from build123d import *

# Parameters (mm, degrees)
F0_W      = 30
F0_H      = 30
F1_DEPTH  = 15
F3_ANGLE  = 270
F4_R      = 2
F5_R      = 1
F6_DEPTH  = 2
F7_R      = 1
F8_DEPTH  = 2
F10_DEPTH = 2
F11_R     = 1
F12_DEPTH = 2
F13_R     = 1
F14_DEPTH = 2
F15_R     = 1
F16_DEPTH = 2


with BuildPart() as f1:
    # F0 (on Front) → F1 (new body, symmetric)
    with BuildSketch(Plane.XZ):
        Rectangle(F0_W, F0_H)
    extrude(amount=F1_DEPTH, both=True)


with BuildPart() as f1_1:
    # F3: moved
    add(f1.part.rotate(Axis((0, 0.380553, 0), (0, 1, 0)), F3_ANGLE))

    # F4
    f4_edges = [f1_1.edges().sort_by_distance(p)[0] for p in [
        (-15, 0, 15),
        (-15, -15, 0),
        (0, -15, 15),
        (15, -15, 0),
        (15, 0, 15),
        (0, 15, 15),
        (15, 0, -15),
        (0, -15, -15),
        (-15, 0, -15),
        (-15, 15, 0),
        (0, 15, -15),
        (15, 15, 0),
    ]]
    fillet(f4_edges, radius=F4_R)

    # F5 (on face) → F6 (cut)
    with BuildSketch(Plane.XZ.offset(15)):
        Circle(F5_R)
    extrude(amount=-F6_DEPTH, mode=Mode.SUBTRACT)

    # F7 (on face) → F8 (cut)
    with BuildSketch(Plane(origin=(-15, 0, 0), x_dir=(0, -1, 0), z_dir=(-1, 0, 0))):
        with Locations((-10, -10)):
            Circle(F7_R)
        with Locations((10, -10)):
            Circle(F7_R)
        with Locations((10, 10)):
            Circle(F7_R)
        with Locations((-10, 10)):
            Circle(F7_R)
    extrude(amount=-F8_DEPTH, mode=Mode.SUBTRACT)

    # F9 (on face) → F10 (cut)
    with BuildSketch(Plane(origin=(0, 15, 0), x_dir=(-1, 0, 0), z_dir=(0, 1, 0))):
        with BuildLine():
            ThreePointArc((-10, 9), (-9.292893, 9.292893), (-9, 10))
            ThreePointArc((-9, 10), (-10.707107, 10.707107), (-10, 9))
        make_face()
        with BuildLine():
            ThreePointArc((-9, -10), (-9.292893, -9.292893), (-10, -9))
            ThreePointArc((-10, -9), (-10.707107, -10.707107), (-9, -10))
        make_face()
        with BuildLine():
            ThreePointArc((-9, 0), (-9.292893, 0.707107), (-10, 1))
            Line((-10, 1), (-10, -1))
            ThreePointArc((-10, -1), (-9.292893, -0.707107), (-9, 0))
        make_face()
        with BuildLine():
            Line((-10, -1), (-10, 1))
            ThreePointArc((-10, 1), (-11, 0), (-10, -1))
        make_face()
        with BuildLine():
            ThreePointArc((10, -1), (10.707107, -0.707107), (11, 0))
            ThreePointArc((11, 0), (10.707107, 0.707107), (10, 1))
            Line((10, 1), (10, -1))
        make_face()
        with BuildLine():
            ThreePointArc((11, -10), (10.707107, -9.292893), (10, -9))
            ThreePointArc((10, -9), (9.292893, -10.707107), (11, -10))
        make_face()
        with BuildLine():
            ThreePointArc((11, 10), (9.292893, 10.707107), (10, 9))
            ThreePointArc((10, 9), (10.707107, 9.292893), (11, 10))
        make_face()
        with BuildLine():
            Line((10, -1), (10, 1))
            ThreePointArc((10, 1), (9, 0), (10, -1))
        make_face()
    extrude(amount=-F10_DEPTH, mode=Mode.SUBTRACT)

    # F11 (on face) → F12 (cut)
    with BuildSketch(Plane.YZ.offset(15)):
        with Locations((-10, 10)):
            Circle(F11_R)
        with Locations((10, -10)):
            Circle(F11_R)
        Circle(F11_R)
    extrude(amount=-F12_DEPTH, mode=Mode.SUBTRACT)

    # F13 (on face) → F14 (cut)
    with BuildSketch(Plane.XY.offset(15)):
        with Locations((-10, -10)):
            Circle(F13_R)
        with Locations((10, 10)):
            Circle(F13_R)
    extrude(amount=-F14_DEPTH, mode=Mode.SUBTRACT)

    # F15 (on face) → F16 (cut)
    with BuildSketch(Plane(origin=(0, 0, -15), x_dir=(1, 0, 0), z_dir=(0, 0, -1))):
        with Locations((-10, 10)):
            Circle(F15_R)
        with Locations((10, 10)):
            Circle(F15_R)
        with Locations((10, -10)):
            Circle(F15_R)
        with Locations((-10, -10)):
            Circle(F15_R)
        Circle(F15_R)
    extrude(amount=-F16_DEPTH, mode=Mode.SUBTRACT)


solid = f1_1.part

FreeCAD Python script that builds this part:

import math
import FreeCAD as App
import Part
import Sketcher

V = App.Vector


def add_polygon(sketch, points):
    """Adds a closed chain of lines whose ends are joined by coincident constraints."""
    first, n = sketch.GeometryCount, len(points)
    for a, b in zip(points, points[1:] + points[:1]):
        sketch.addGeometry(Part.LineSegment(App.Vector(*a, 0), App.Vector(*b, 0)), False)
    for i in range(n):
        sketch.addConstraint(Sketcher.Constraint("Coincident", first + i, 2, first + (i + 1) % n, 1))

doc = App.newDocument("Part")
params = doc.addObject("Spreadsheet::Sheet", "Params")
for row, (alias, value) in enumerate([
    ("sketch1_width", "30 mm"),
    ("pad1_length", "30 mm"),
    ("fillet_radius", "2 mm"),
    ("sketch2_diameter", "2 mm"),
    ("pocket1_length", "2 mm"),
    ("sketch3_diameter", "2 mm"),
    ("pocket2_length", "2 mm"),
    ("sketch4_radius", "0.999999 mm"),
    ("pocket3_length", "2 mm"),
    ("sketch5_diameter", "2 mm"),
    ("pocket4_length", "2 mm"),
    ("sketch6_diameter", "2 mm"),
    ("pocket5_length", "2 mm"),
    ("sketch7_diameter", "2 mm"),
    ("pocket6_length", "2 mm"),
], start=1):
    params.set(f"A{row}", alias)
    params.set(f"B{row}", "=" + value)
    params.setAlias(f"B{row}", alias)

body = doc.addObject("PartDesign::Body", "Body")

sketch1 = body.newObject("Sketcher::SketchObject", "Sketch")
sketch1.AttachmentSupport = (doc.getObject("XZ_Plane"), [""])
sketch1.MapMode = "FlatFace"
add_polygon(sketch1, [(-15, 15), (-15, -15), (15, -15), (15, 15)])
sketch1.addConstraint(Sketcher.Constraint("Vertical", 0))
sketch1.addConstraint(Sketcher.Constraint("Horizontal", 1))
sketch1.addConstraint(Sketcher.Constraint("Vertical", 2))
sketch1.addConstraint(Sketcher.Constraint("Horizontal", 3))
sketch1.addConstraint(Sketcher.Constraint("Symmetric", 0, 2, 2, 2, -1, 1))
sketch1.addConstraint(Sketcher.Constraint("Equal", 3, 0))
sketch1.addConstraint(Sketcher.Constraint("DistanceX", 1, 1, 1, 2, 30.0))
sketch1.setExpression("Constraints[10]", "Params.sketch1_width")
pad1 = body.newObject("PartDesign::Pad", "Pad")
pad1.Profile = sketch1
pad1.setExpression("Length", "Params.pad1_length")
pad1.Midplane = True
body2 = doc.addObject("PartDesign::Body", "Body001")
doc.recompute()

body.Placement = App.Placement(V(0, 0, 0), App.Rotation(V(0, 1, 0), 270))
boolean = body2.newObject("PartDesign::Boolean", "Boolean")
boolean.Type = "Fuse"
boolean.addObjects([body])
doc.recompute()

fillet = body2.newObject("PartDesign::Fillet", "Fillet")
fillet.Base = (boolean, ["Edge1"])
fillet.UseAllEdges = True
fillet.setExpression("Radius", "Params.fillet_radius")

sketch2 = body2.newObject("Sketcher::SketchObject", "Sketch001")
sketch2.AttachmentSupport = (doc.getObject("XZ_Plane001"), [""])
sketch2.MapMode = "FlatFace"
sketch2.AttachmentOffset = App.Placement(V(0, 0, 15), App.Rotation())
sketch2.addGeometry(Part.Circle(V(0, 0, 0), V(0, 0, 1), 1), False)
sketch2.addConstraint(Sketcher.Constraint("Coincident", 0, 3, -1, 1))
sketch2.addConstraint(Sketcher.Constraint("Diameter", 0, 2.0))
sketch2.setExpression("Constraints[1]", "Params.sketch2_diameter")
pocket1 = body2.newObject("PartDesign::Pocket", "Pocket")
pocket1.Profile = sketch2
pocket1.setExpression("Length", "Params.pocket1_length")

sketch3 = body2.newObject("Sketcher::SketchObject", "Sketch002")
sketch3.AttachmentSupport = (doc.getObject("YZ_Plane001"), [""])
sketch3.MapMode = "FlatFace"
sketch3.AttachmentOffset = App.Placement(V(0, 0, -15), App.Rotation())
sketch3.addGeometry(Part.Circle(V(10, -10, 0), V(0, 0, 1), 1), False)
sketch3.addGeometry(Part.Circle(V(-10, -10, 0), V(0, 0, 1), 1), False)
sketch3.addGeometry(Part.Circle(V(-10, 10, 0), V(0, 0, 1), 1), False)
sketch3.addGeometry(Part.Circle(V(10, 10, 0), V(0, 0, 1), 1), False)
sketch3.addConstraint(Sketcher.Constraint("Equal", 0, 1))
sketch3.addConstraint(Sketcher.Constraint("Equal", 1, 2))
sketch3.addConstraint(Sketcher.Constraint("Equal", 2, 3))
sketch3.addConstraint(Sketcher.Constraint("Symmetric", 0, 3, 2, 3, -1, 1))
sketch3.addConstraint(Sketcher.Constraint("Symmetric", 1, 3, 3, 3, -1, 1))
sketch3.addConstraint(Sketcher.Constraint("Symmetric", 0, 3, 1, 3, -2))
sketch3.addConstraint(Sketcher.Constraint("Diameter", 0, 2.0))
sketch3.addConstraint(Sketcher.Constraint("DistanceX", -1, 1, 0, 3, 10.0))
sketch3.addConstraint(Sketcher.Constraint("DistanceY", 0, 3, -1, 1, 10.0))
sketch3.setExpression("Constraints[6]", "Params.sketch3_diameter")
pocket2 = body2.newObject("PartDesign::Pocket", "Pocket001")
pocket2.Profile = sketch3
pocket2.setExpression("Length", "Params.pocket2_length")
pocket2.Reversed = True

sketch4 = body2.newObject("Sketcher::SketchObject", "Sketch003")
sketch4.AttachmentSupport = (doc.getObject("XZ_Plane001"), [""])
sketch4.MapMode = "FlatFace"
sketch4.AttachmentOffset = App.Placement(V(0, 0, -15), App.Rotation())
sketch4.addGeometry(Part.ArcOfCircle(Part.Circle(V(10, 10, 0), V(0, 0, 1), 1), math.radians(180), math.radians(270)), False)
sketch4.addGeometry(Part.ArcOfCircle(Part.Circle(V(10, 10, 0), V(0, 0, 1), 1), math.radians(-90), math.radians(180)), False)
sketch4.addGeometry(Part.ArcOfCircle(Part.Circle(V(10, -10, 0), V(0, 0, 1), 1), math.radians(90), math.radians(180)), False)
sketch4.addGeometry(Part.ArcOfCircle(Part.Circle(V(10, -10, 0), V(0, 0, 1), 1), math.radians(180), math.radians(450)), False)
sketch4.addGeometry(Part.ArcOfCircle(Part.Circle(V(10, 0, 0), V(0, 0, 1), 1), math.radians(90), math.radians(180)), False)
sketch4.addGeometry(Part.ArcOfCircle(Part.Circle(V(10, 0, 0), V(0, 0, 1), 1), math.radians(-90), math.radians(90)), False)
sketch4.addGeometry(Part.ArcOfCircle(Part.Circle(V(10, 0, 0), V(0, 0, 1), 1), math.radians(180), math.radians(270)), False)
sketch4.addGeometry(Part.ArcOfCircle(Part.Circle(V(-10, 0, 0), V(0, 0, 1), 1), math.radians(180), math.radians(270)), False)
sketch4.addGeometry(Part.ArcOfCircle(Part.Circle(V(-10, 0, 0), V(0, 0, 1), 1), math.radians(90), math.radians(180)), False)
sketch4.addGeometry(Part.ArcOfCircle(Part.Circle(V(-10, 0, 0), V(0, 0, 1), 1), math.radians(-90), math.radians(90)), False)
sketch4.addGeometry(Part.ArcOfCircle(Part.Circle(V(-10, -10, 0), V(0, 0, 1), 1), math.radians(90), math.radians(180)), False)
sketch4.addGeometry(Part.ArcOfCircle(Part.Circle(V(-10, -10, 0), V(0, 0, 1), 1), math.radians(180), math.radians(450)), False)
sketch4.addGeometry(Part.ArcOfCircle(Part.Circle(V(-10, 10, 0), V(0, 0, 1), 1), math.radians(-90), math.radians(180)), False)
sketch4.addGeometry(Part.ArcOfCircle(Part.Circle(V(-10, 10, 0), V(0, 0, 1), 1), math.radians(180), math.radians(270)), False)
sketch4.addConstraint(Sketcher.Constraint("Tangent", 0, 1, 1, 2))
sketch4.addConstraint(Sketcher.Constraint("Coincident", 1, 1, 0, 2))
sketch4.addConstraint(Sketcher.Constraint("Tangent", 2, 1, 3, 2))
sketch4.addConstraint(Sketcher.Constraint("Coincident", 3, 1, 2, 2))
sketch4.addConstraint(Sketcher.Constraint("Tangent", 4, 1, 5, 2))
sketch4.addConstraint(Sketcher.Constraint("Tangent", 5, 1, 6, 2))
sketch4.addConstraint(Sketcher.Constraint("Tangent", 6, 1, 4, 2))
sketch4.addConstraint(Sketcher.Constraint("Tangent", 7, 1, 8, 2))
sketch4.addConstraint(Sketcher.Constraint("Tangent", 8, 1, 9, 2))
sketch4.addConstraint(Sketcher.Constraint("Tangent", 9, 1, 7, 2))
sketch4.addConstraint(Sketcher.Constraint("Tangent", 10, 1, 11, 2))
sketch4.addConstraint(Sketcher.Constraint("Coincident", 11, 1, 10, 2))
sketch4.addConstraint(Sketcher.Constraint("Tangent", 12, 1, 13, 2))
sketch4.addConstraint(Sketcher.Constraint("Coincident", 13, 1, 12, 2))
sketch4.addConstraint(Sketcher.Constraint("Equal", 1, 2))
sketch4.addConstraint(Sketcher.Constraint("Equal", 3, 4))
sketch4.addConstraint(Sketcher.Constraint("Equal", 6, 7))
sketch4.addConstraint(Sketcher.Constraint("Equal", 9, 10))
sketch4.addConstraint(Sketcher.Constraint("Equal", 11, 12))
sketch4.addConstraint(Sketcher.Constraint("Symmetric", 4, 3, 7, 3, -1, 1))
sketch4.addConstraint(Sketcher.Constraint("Symmetric", 0, 3, 10, 3, -1, 1))
sketch4.addConstraint(Sketcher.Constraint("Symmetric", 2, 3, 12, 3, -1, 1))
sketch4.addConstraint(Sketcher.Constraint("Symmetric", 2, 3, 10, 3, -2))
sketch4.addConstraint(Sketcher.Constraint("Symmetric", 4, 1, 8, 1, -2))
sketch4.addConstraint(Sketcher.Constraint("PointOnObject", 6, 1, -1))
sketch4.addConstraint(Sketcher.Constraint("PointOnObject", 7, 1, -1))
sketch4.addConstraint(Sketcher.Constraint("Horizontal", 13, 3, 0, 1))
sketch4.addConstraint(Sketcher.Constraint("Horizontal", 11, 3, 3, 1))
sketch4.addConstraint(Sketcher.Constraint("Horizontal", 3, 1, 11, 1))
sketch4.addConstraint(Sketcher.Constraint("Horizontal", 0, 1, 13, 1))
sketch4.addConstraint(Sketcher.Constraint("Vertical", 3, 3, 4, 3))
sketch4.addConstraint(Sketcher.Constraint("Vertical", 6, 3, 1, 1))
sketch4.addConstraint(Sketcher.Constraint("Vertical", 1, 1, 2, 1))
sketch4.addConstraint(Sketcher.Constraint("Vertical", 2, 1, 4, 1))
sketch4.addConstraint(Sketcher.Constraint("Vertical", 4, 1, 5, 1))
sketch4.addConstraint(Sketcher.Constraint("Vertical", 8, 1, 9, 1))
sketch4.addConstraint(Sketcher.Constraint("Vertical", 9, 1, 10, 1))
sketch4.addConstraint(Sketcher.Constraint("Vertical", 10, 1, 12, 1))
sketch4.addConstraint(Sketcher.Constraint("Radius", 0, 0.999999))
sketch4.addConstraint(Sketcher.Constraint("DistanceX", -1, 1, 0, 3, 9.999999))
sketch4.addConstraint(Sketcher.Constraint("DistanceY", -1, 1, 0, 3, 9.999999))
sketch4.setExpression("Constraints[38]", "Params.sketch4_radius")
pocket3 = body2.newObject("PartDesign::Pocket", "Pocket002")
pocket3.Profile = sketch4
pocket3.setExpression("Length", "Params.pocket3_length")
pocket3.Reversed = True

sketch5 = body2.newObject("Sketcher::SketchObject", "Sketch004")
sketch5.AttachmentSupport = (doc.getObject("YZ_Plane001"), [""])
sketch5.MapMode = "FlatFace"
sketch5.AttachmentOffset = App.Placement(V(0, 0, 15), App.Rotation())
sketch5.addGeometry(Part.Circle(V(-10, 10, 0), V(0, 0, 1), 1), False)
sketch5.addGeometry(Part.Circle(V(10, -10, 0), V(0, 0, 1), 1), False)
sketch5.addGeometry(Part.Circle(V(0, 0, 0), V(0, 0, 1), 1), False)
sketch5.addConstraint(Sketcher.Constraint("Coincident", 2, 3, -1, 1))
sketch5.addConstraint(Sketcher.Constraint("Equal", 0, 1))
sketch5.addConstraint(Sketcher.Constraint("Equal", 1, 2))
sketch5.addConstraint(Sketcher.Constraint("Symmetric", 0, 3, 1, 3, -1, 1))
sketch5.addConstraint(Sketcher.Constraint("Diameter", 0, 2.0))
sketch5.addConstraint(Sketcher.Constraint("DistanceX", 0, 3, -1, 1, 10.0))
sketch5.addConstraint(Sketcher.Constraint("DistanceY", -1, 1, 0, 3, 10.0))
sketch5.setExpression("Constraints[4]", "Params.sketch5_diameter")
pocket4 = body2.newObject("PartDesign::Pocket", "Pocket003")
pocket4.Profile = sketch5
pocket4.setExpression("Length", "Params.pocket4_length")

sketch6 = body2.newObject("Sketcher::SketchObject", "Sketch005")
sketch6.AttachmentSupport = (doc.getObject("XY_Plane001"), [""])
sketch6.MapMode = "FlatFace"
sketch6.AttachmentOffset = App.Placement(V(0, 0, 15), App.Rotation())
sketch6.addGeometry(Part.Circle(V(-10, -10, 0), V(0, 0, 1), 1), False)
sketch6.addGeometry(Part.Circle(V(10, 10, 0), V(0, 0, 1), 1), False)
sketch6.addConstraint(Sketcher.Constraint("Equal", 0, 1))
sketch6.addConstraint(Sketcher.Constraint("Symmetric", 0, 3, 1, 3, -1, 1))
sketch6.addConstraint(Sketcher.Constraint("Diameter", 0, 2.0))
sketch6.addConstraint(Sketcher.Constraint("DistanceX", 0, 3, -1, 1, 10.0))
sketch6.addConstraint(Sketcher.Constraint("DistanceY", 0, 3, -1, 1, 10.0))
sketch6.setExpression("Constraints[2]", "Params.sketch6_diameter")
pocket5 = body2.newObject("PartDesign::Pocket", "Pocket004")
pocket5.Profile = sketch6
pocket5.setExpression("Length", "Params.pocket5_length")

sketch7 = body2.newObject("Sketcher::SketchObject", "Sketch006")
sketch7.AttachmentSupport = (doc.getObject("XY_Plane001"), [""])
sketch7.MapMode = "FlatFace"
sketch7.AttachmentOffset = App.Placement(V(0, 0, -15), App.Rotation())
sketch7.addGeometry(Part.Circle(V(-10, -10, 0), V(0, 0, 1), 1), False)
sketch7.addGeometry(Part.Circle(V(10, -10, 0), V(0, 0, 1), 1), False)
sketch7.addGeometry(Part.Circle(V(10, 10, 0), V(0, 0, 1), 1), False)
sketch7.addGeometry(Part.Circle(V(-10, 10, 0), V(0, 0, 1), 1), False)
sketch7.addGeometry(Part.Circle(V(0, 0, 0), V(0, 0, 1), 1), False)
sketch7.addConstraint(Sketcher.Constraint("Coincident", 4, 3, -1, 1))
sketch7.addConstraint(Sketcher.Constraint("Equal", 0, 1))
sketch7.addConstraint(Sketcher.Constraint("Equal", 1, 2))
sketch7.addConstraint(Sketcher.Constraint("Equal", 2, 3))
sketch7.addConstraint(Sketcher.Constraint("Equal", 3, 4))
sketch7.addConstraint(Sketcher.Constraint("Symmetric", 0, 3, 2, 3, -1, 1))
sketch7.addConstraint(Sketcher.Constraint("Symmetric", 1, 3, 3, 3, -1, 1))
sketch7.addConstraint(Sketcher.Constraint("Symmetric", 0, 3, 1, 3, -2))
sketch7.addConstraint(Sketcher.Constraint("Diameter", 0, 2.0))
sketch7.addConstraint(Sketcher.Constraint("DistanceX", 0, 3, -1, 1, 10.0))
sketch7.addConstraint(Sketcher.Constraint("DistanceY", 0, 3, -1, 1, 10.0))
sketch7.setExpression("Constraints[8]", "Params.sketch7_diameter")
pocket6 = body2.newObject("PartDesign::Pocket", "Pocket005")
pocket6.Profile = sketch7
pocket6.setExpression("Length", "Params.pocket6_length")
pocket6.Reversed = True

doc.recompute()
